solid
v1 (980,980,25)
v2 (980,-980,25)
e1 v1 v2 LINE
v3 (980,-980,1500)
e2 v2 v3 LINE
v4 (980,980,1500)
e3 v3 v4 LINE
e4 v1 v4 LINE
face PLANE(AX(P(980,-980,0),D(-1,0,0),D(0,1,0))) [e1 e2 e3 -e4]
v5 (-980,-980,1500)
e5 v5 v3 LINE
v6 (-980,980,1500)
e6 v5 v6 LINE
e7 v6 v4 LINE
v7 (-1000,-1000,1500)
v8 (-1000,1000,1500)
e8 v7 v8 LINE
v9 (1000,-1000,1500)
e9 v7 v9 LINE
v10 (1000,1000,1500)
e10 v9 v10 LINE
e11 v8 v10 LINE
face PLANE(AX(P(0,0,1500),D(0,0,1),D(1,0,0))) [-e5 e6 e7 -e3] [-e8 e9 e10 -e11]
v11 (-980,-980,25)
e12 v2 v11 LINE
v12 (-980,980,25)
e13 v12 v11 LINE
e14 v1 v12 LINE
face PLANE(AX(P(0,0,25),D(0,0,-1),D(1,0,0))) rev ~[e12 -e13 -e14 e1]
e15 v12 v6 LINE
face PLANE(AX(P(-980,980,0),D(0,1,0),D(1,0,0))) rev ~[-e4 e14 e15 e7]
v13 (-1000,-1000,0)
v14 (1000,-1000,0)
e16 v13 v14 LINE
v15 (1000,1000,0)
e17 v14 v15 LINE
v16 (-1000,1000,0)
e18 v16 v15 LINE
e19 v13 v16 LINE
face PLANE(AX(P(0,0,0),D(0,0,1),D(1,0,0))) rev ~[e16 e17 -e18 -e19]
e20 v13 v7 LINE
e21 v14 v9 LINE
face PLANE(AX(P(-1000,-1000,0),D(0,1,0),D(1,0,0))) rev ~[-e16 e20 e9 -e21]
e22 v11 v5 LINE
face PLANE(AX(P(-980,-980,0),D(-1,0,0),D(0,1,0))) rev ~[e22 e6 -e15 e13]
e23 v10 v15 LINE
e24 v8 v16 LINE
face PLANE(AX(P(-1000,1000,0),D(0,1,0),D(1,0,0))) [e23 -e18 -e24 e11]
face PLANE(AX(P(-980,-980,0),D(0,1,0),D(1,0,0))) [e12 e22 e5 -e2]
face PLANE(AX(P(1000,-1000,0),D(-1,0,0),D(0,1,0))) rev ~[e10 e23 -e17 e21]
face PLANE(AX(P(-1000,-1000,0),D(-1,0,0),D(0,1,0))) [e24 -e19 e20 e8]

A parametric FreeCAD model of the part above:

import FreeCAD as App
import Part
import Sketcher

doc = App.newDocument("Part")
body = doc.addObject("PartDesign::Body", "Body")

sketch1 = body.newObject("Sketcher::SketchObject", "Sketch")
sketch1.AttachmentSupport = (doc.getObject("XY_Plane"), [""])
sketch1.MapMode = "FlatFace"
sketch1.addGeometry(Part.LineSegment(App.Vector(-1000, 1000, 0), App.Vector(-1000, -1000, 0)), False)
sketch1.addGeometry(Part.LineSegment(App.Vector(-1000, -1000, 0), App.Vector(1000, -1000, 0)), False)
sketch1.addGeometry(Part.LineSegment(App.Vector(1000, -1000, 0), App.Vector(1000, 1000, 0)), False)
sketch1.addGeometry(Part.LineSegment(App.Vector(1000, 1000, 0), App.Vector(-1000, 1000, 0)), False)
sketch1.addGeometry(Part.LineSegment(App.Vector(980, -980, 0), App.Vector(-980, -980, 0)), False)
sketch1.addGeometry(Part.LineSegment(App.Vector(-980, -980, 0), App.Vector(-980, 980, 0)), False)
sketch1.addGeometry(Part.LineSegment(App.Vector(-980, 980, 0), App.Vector(980, 980, 0)), False)
sketch1.addGeometry(Part.LineSegment(App.Vector(980, 980, 0), App.Vector(980, -980, 0)), False)
sketch1.addConstraint(Sketcher.Constraint("Coincident", 0, 2, 1, 1))
sketch1.addConstraint(Sketcher.Constraint("Coincident", 1, 2, 2, 1))
sketch1.addConstraint(Sketcher.Constraint("Coincident", 2, 2, 3, 1))
sketch1.addConstraint(Sketcher.Constraint("Coincident", 3, 2, 0, 1))
sketch1.addConstraint(Sketcher.Constraint("Coincident", 4, 2, 5, 1))
sketch1.addConstraint(Sketcher.Constraint("Coincident", 5, 2, 6, 1))
sketch1.addConstraint(Sketcher.Constraint("Coincident", 6, 2, 7, 1))
sketch1.addConstraint(Sketcher.Constraint("Coincident", 7, 2, 4, 1))
sketch1.addConstraint(Sketcher.Constraint("Vertical", 0))
sketch1.addConstraint(Sketcher.Constraint("Horizontal", 1))
sketch1.addConstraint(Sketcher.Constraint("Vertical", 2))
sketch1.addConstraint(Sketcher.Constraint("Horizontal", 3))
sketch1.addConstraint(Sketcher.Constraint("Horizontal", 4))
sketch1.addConstraint(Sketcher.Constraint("Vertical", 5))
sketch1.addConstraint(Sketcher.Constraint("Horizontal", 6))
sketch1.addConstraint(Sketcher.Constraint("Vertical", 7))
sketch1.addConstraint(Sketcher.Constraint("Symmetric", 0, 2, 2, 2, -1, 1))
sketch1.addConstraint(Sketcher.Constraint("Symmetric", 4, 2, 6, 2, -1, 1))
sketch1.addConstraint(Sketcher.Constraint("Equal", 3, 0))
sketch1.addConstraint(Sketcher.Constraint("Equal", 6, 5))
sketch1.addConstraint(Sketcher.Constraint("DistanceX", 1, 1, 1, 2, 2000.0))
sketch1.addConstraint(Sketcher.Constraint("DistanceX", 4, 2, 4, 1, 1960.0))
pad1 = body.newObject("PartDesign::Pad", "Pad")
pad1.Profile = sketch1
pad1.Length = 1500

sketch2 = body.newObject("Sketcher::SketchObject", "Sketch001")
sketch2.AttachmentSupport = (doc.getObject("XY_Plane"), [""])
sketch2.MapMode = "FlatFace"
sketch2.addGeometry(Part.LineSegment(App.Vector(-1000, -1000, 0), App.Vector(-1000, 1000, 0)), False)
sketch2.addGeometry(Part.LineSegment(App.Vector(-1000, 1000, 0), App.Vector(1000, 1000, 0)), False)
sketch2.addGeometry(Part.LineSegment(App.Vector(1000, 1000, 0), App.Vector(1000, -1000, 0)), False)
sketch2.addGeometry(Part.LineSegment(App.Vector(1000, -1000, 0), App.Vector(-1000, -1000, 0)), False)
sketch2.addConstraint(Sketcher.Constraint("Coincident", 0, 2, 1, 1))
sketch2.addConstraint(Sketcher.Constraint("Coincident", 1, 2, 2, 1))
sketch2.addConstraint(Sketcher.Constraint("Coincident", 2, 2, 3, 1))
sketch2.addConstraint(Sketcher.Constraint("Coincident", 3, 2, 0, 1))
sketch2.addConstraint(Sketcher.Constraint("Vertical", 0))
sketch2.addConstraint(Sketcher.Constraint("Horizontal", 1))
sketch2.addConstraint(Sketcher.Constraint("Vertical", 2))
sketch2.addConstraint(Sketcher.Constraint("Horizontal", 3))
sketch2.addConstraint(Sketcher.Constraint("Symmetric", 0, 2, 2, 2, -1, 1))
sketch2.addConstraint(Sketcher.Constraint("Equal", 3, 0))
sketch2.addConstraint(Sketcher.Constraint("DistanceX", 1, 1, 1, 2, 2000.0))
pad2 = body.newObject("PartDesign::Pad", "Pad001")
pad2.Profile = sketch2
pad2.Length = 25

doc.recompute()
